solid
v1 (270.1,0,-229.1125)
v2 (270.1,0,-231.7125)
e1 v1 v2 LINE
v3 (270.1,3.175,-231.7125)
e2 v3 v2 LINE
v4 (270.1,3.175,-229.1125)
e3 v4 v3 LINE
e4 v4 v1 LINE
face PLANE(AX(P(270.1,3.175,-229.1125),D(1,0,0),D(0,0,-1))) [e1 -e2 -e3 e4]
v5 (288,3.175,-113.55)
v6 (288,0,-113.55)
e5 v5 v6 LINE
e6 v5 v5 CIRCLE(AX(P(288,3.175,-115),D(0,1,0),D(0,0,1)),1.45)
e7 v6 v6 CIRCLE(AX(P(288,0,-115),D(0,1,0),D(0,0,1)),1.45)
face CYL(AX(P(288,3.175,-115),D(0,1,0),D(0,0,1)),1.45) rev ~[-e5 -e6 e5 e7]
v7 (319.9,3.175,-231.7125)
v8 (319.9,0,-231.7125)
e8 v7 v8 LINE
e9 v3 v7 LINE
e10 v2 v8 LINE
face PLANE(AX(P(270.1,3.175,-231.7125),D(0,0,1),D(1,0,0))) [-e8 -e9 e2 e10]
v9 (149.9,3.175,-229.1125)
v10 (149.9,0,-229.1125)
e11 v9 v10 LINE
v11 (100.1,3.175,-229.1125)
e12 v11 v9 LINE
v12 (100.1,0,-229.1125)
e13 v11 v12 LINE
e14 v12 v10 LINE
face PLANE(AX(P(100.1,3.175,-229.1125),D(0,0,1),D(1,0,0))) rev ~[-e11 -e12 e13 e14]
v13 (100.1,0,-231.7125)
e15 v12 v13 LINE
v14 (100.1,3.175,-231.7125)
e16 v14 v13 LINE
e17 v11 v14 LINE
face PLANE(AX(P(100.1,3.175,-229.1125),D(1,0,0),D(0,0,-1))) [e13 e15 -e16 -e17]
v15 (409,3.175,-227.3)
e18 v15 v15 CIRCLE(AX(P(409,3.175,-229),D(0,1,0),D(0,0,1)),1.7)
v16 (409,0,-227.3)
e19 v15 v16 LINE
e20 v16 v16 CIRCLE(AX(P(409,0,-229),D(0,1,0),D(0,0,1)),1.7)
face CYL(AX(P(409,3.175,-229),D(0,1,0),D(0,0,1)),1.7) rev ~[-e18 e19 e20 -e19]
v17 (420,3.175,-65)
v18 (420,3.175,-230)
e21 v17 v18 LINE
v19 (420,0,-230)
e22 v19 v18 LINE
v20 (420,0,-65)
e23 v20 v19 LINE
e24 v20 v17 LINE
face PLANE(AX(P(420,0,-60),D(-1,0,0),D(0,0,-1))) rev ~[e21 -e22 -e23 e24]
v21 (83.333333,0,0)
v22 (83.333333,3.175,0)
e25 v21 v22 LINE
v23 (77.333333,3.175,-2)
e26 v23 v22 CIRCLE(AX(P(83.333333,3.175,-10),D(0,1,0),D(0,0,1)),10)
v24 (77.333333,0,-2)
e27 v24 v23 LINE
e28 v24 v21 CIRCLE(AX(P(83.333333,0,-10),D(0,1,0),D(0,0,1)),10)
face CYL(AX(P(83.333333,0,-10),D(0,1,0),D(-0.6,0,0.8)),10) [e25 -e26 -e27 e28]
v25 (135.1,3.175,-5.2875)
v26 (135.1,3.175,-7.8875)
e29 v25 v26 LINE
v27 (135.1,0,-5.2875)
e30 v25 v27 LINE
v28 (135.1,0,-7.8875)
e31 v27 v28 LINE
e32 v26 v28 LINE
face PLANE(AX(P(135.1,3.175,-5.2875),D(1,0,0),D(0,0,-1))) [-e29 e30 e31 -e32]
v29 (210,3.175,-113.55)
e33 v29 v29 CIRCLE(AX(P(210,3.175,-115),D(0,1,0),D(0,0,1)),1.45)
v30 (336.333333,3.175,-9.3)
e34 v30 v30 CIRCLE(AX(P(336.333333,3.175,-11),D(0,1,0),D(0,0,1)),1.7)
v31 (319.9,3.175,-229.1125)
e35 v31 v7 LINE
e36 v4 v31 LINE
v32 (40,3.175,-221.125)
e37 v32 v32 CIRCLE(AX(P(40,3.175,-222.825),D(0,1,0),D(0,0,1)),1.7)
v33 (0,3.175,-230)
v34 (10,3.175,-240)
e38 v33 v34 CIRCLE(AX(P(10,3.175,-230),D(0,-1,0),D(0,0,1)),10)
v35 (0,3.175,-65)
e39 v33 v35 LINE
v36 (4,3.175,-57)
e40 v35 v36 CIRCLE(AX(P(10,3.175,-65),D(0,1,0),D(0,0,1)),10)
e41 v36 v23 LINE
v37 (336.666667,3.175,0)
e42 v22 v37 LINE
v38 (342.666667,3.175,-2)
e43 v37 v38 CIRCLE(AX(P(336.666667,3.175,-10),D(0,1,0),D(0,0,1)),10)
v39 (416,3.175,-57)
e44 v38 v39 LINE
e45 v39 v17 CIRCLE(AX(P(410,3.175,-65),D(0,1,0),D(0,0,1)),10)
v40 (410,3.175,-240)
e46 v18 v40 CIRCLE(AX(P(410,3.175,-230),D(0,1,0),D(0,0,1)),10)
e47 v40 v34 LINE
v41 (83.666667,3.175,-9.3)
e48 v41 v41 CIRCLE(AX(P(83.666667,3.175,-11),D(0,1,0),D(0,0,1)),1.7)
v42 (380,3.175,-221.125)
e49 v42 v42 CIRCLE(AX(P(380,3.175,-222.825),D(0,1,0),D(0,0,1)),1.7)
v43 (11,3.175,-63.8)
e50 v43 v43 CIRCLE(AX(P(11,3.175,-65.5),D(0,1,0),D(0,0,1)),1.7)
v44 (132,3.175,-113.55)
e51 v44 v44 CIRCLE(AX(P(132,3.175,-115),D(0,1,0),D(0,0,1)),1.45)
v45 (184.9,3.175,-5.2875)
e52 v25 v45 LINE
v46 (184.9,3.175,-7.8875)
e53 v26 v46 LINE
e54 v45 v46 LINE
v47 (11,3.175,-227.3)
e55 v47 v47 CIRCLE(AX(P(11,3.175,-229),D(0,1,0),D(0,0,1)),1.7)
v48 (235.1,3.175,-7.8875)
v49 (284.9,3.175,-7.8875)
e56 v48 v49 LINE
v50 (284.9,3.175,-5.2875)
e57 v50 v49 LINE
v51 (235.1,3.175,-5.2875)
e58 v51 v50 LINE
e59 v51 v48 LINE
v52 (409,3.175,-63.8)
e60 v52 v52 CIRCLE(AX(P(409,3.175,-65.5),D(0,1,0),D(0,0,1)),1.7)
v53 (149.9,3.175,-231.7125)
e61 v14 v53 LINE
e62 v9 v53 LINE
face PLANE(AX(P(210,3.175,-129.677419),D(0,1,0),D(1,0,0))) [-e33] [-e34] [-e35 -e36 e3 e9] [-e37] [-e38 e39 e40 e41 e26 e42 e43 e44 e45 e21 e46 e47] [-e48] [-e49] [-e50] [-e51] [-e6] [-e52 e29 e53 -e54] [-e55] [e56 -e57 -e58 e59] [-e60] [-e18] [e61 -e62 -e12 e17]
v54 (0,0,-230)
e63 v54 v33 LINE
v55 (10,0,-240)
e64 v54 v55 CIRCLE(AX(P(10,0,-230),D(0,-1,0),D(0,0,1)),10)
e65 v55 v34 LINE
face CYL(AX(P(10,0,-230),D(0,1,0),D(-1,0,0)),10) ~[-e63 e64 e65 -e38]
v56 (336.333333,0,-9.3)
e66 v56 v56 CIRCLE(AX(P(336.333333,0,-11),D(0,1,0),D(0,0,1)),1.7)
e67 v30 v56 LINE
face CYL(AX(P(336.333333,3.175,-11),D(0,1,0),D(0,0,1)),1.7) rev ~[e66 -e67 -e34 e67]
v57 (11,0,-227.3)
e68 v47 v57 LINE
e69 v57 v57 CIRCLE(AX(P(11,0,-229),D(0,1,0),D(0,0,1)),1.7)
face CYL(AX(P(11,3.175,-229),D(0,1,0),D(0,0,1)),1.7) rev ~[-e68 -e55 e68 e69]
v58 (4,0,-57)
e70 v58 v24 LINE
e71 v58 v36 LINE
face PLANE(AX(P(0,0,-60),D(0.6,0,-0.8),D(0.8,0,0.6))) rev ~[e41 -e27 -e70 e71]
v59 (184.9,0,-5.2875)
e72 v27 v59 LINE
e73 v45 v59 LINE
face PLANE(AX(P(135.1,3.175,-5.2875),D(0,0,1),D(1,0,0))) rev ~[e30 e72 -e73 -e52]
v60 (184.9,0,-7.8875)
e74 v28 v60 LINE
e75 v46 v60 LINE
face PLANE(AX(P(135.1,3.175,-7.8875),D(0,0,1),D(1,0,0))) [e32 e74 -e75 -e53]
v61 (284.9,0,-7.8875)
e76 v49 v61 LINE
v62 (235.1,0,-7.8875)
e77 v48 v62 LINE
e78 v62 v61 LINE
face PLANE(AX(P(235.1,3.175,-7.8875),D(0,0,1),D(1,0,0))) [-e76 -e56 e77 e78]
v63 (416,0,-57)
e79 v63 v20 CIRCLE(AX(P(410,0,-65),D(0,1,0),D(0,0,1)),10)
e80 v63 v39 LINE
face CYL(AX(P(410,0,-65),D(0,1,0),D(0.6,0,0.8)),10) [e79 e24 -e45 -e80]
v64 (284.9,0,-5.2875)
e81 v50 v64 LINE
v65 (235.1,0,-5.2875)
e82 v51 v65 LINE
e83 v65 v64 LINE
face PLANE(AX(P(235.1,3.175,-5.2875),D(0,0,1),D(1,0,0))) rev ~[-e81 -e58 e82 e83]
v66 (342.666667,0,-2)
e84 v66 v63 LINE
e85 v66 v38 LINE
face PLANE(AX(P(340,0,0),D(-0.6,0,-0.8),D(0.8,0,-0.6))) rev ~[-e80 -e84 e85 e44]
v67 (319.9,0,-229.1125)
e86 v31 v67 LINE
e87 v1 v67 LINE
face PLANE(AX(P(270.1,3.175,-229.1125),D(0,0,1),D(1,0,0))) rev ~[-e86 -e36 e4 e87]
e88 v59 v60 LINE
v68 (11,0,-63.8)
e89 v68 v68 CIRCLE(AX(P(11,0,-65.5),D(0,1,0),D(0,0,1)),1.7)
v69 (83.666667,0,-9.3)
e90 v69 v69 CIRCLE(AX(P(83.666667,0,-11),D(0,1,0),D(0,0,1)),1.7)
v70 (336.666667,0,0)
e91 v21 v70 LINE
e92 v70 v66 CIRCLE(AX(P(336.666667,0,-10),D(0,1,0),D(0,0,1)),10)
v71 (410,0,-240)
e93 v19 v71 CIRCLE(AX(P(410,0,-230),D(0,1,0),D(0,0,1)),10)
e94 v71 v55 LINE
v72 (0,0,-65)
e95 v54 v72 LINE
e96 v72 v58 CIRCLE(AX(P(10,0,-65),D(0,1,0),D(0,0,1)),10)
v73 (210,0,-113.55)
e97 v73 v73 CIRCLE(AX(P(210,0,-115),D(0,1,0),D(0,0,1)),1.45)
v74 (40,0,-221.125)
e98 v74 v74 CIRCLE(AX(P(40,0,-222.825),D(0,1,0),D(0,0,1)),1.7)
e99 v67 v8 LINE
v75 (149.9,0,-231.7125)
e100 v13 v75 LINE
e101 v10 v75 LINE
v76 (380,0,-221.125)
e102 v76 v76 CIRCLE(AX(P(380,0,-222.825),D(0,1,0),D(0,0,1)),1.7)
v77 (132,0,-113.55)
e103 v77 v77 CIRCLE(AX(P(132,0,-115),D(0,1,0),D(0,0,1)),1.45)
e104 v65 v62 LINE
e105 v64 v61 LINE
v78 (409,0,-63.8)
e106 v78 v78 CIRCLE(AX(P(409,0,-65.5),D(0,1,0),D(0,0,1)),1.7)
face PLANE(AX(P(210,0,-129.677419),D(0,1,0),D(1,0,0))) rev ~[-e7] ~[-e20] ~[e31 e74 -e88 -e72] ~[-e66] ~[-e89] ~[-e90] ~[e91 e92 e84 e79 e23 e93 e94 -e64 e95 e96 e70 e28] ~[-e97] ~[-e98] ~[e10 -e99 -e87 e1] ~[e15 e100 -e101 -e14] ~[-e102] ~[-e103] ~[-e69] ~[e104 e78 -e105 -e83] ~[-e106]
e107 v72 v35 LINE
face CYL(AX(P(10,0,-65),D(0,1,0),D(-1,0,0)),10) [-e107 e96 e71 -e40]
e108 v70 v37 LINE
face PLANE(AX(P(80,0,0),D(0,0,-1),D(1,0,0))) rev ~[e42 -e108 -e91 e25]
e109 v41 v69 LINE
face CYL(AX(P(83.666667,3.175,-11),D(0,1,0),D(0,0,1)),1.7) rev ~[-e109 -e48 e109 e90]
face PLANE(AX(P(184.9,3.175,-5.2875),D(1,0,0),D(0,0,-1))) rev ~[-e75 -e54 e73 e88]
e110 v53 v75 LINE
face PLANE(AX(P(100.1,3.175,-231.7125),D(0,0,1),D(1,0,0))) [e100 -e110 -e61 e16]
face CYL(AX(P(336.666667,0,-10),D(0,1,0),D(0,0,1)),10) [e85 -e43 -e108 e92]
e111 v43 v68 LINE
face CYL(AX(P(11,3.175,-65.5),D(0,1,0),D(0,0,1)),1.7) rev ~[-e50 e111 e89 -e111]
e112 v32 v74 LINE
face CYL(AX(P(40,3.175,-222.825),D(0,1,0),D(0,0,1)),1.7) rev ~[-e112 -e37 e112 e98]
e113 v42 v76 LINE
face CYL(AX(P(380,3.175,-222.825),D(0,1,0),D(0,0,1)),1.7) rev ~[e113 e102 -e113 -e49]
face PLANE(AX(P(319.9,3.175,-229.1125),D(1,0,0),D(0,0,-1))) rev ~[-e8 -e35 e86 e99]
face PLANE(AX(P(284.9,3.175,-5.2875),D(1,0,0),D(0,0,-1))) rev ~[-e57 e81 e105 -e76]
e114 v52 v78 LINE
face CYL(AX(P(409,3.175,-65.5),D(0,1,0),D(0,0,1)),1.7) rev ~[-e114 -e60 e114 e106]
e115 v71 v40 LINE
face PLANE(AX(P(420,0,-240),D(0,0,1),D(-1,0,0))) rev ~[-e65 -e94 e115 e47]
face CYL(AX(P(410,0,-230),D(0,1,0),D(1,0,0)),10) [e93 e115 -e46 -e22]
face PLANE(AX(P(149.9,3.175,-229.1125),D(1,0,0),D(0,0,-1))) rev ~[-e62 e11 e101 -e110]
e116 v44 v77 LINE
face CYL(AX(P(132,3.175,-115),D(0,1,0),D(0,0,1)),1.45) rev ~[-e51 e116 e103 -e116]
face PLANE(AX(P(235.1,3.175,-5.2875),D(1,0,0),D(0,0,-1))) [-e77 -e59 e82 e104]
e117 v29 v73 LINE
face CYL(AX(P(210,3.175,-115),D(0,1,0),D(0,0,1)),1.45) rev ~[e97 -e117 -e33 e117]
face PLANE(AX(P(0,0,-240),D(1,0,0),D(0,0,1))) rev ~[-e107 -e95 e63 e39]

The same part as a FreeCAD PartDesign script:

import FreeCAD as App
import Part
import Sketcher
Q = App.Units.Quantity


def edges_at(feature, points):
    """Names of the edges that pass closest to the given points."""
    edges = feature.Shape.Edges
    near = lambda p: min(range(len(edges)), key=lambda i: edges[i].distToShape(Part.Vertex(*p))[0])
    return sorted({f"Edge{near(p) + 1}" for p in points})


def add_polygon(sketch, points):
    """Adds a closed chain of lines whose ends are joined by coincident constraints."""
    first, n = sketch.GeometryCount, len(points)
    for a, b in zip(points, points[1:] + points[:1]):
        sketch.addGeometry(Part.LineSegment(App.Vector(*a, 0), App.Vector(*b, 0)), False)
    for i in range(n):
        sketch.addConstraint(Sketcher.Constraint("Coincident", first + i, 2, first + (i + 1) % n, 1))

doc = App.newDocument("Part")
params = doc.addObject("Spreadsheet::Sheet", "Params")
for row, (alias, value) in enumerate([
    ("sketch1_width", "260 mm"),
    ("sketch1_width2", "420 mm"),
    ("sketch1_height", "180 mm"),
    ("sketch1_length", "100 mm"),
    ("pad1_length", "3.175 mm"),
    ("fillet_radius", "10 mm"),
    ("sketch2_diameter", "3.4 mm"),
    ("sketch2_diameter2", "2.9 mm"),
    ("pocket1_length", "3.175 mm"),
    ("sketch3_width", "49.8 mm"),
    ("sketch3_height", "2.6 mm"),
    ("pocket2_length", "3.175 mm"),
], start=1):
    params.set(f"A{row}", alias)
    params.set(f"B{row}", "=" + value)
    params.setAlias(f"B{row}", alias)

body = doc.addObject("PartDesign::Body", "Body")

# Sketch on XZ plane
sketch1 = doc.addObject("Sketcher::SketchObject", "Sketch")
body.addObject(sketch1)
sketch1.AttachmentSupport = (doc.XZ_Plane, [""])
sketch1.MapMode = "FlatFace"
add_polygon(sketch1, [(0, -240), (0, -60), (80, 0), (340, 0), (420, -60), (420, -240)])  # lines 0-5
sketch1.addConstraint([
    Sketcher.Constraint("Vertical", 0),
    Sketcher.Constraint("Horizontal", 2),
    Sketcher.Constraint("Vertical", 4),
    Sketcher.Constraint("Horizontal", 5),
    Sketcher.Constraint("PointOnObject", 0, 2, -2),
    Sketcher.Constraint("PointOnObject", 1, 2, -1),
    Sketcher.Constraint("Horizontal", 0, 2, 3, 2),
    Sketcher.Constraint("Equal", 1, 3),
    Sketcher.Constraint("DistanceX", 2, 1, 2, 2, Q("260 mm")),
    Sketcher.Constraint("DistanceX", 5, 2, 5, 1, Q("420 mm")),
    Sketcher.Constraint("DistanceY", 0, 1, 0, 2, Q("180 mm")),
    Sketcher.Constraint("Distance", 1, Q("100 mm")),
])
sketch1.setExpression("Constraints[14]", "Params.sketch1_width")
sketch1.setExpression("Constraints[15]", "Params.sketch1_width2")
sketch1.setExpression("Constraints[16]", "Params.sketch1_height")
sketch1.setExpression("Constraints[17]", "Params.sketch1_length")
pad1 = doc.addObject("PartDesign::Pad", "Pad")
body.addObject(pad1)
pad1.Profile = sketch1
pad1.setExpression("Length", "Params.pad1_length")
pad1.Reversed = True
doc.recompute()

fillet = doc.addObject("PartDesign::Fillet", "Fillet")
body.addObject(fillet)
fillet.Base = (pad1, edges_at(pad1, [
    (420, 1.587, -240),
    (420, 1.587, -60),
    (340, 1.587, 0),
    (80, 1.587, 0),
    (0, 1.587, -60),
    (0, 1.587, -240),
]))
fillet.setExpression("Radius", "Params.fillet_radius")

# Sketch on XZ plane
sketch2 = doc.addObject("Sketcher::SketchObject", "Sketch001")
body.addObject(sketch2)
sketch2.AttachmentSupport = (doc.XZ_Plane, [""])
sketch2.MapMode = "FlatFace"
sketch2.AttachmentOffset = App.Placement(App.Vector(0, 0, -3.175), App.Rotation())
sketch2.addGeometry([
    Part.Circle(App.Vector(11, -229, 0), App.Vector(0, 0, 1), 1.7),  # 0
    Part.Circle(App.Vector(11, -65.5, 0), App.Vector(0, 0, 1), 1.7),  # 1
    Part.Circle(App.Vector(83.7, -11, 0), App.Vector(0, 0, 1), 1.7),  # 2
    Part.Circle(App.Vector(409, -65.5, 0), App.Vector(0, 0, 1), 1.7),  # 3
    Part.Circle(App.Vector(336.3, -11, 0), App.Vector(0, 0, 1), 1.7),  # 4
    Part.Circle(App.Vector(210, -115, 0), App.Vector(0, 0, 1), 1.4),  # 5
    Part.Circle(App.Vector(132, -115, 0), App.Vector(0, 0, 1), 1.4),  # 6
    Part.Circle(App.Vector(288, -115, 0), App.Vector(0, 0, 1), 1.4),  # 7
    Part.Circle(App.Vector(40, -222.8, 0), App.Vector(0, 0, 1), 1.7),  # 8
    Part.Circle(App.Vector(380, -222.8, 0), App.Vector(0, 0, 1), 1.7),  # 9
    Part.Circle(App.Vector(409, -229, 0), App.Vector(0, 0, 1), 1.7),  # 10
], False)
sketch2.addConstraint([
    Sketcher.Constraint("Equal", 0, 1),
    Sketcher.Constraint("Equal", 1, 2),
    Sketcher.Constraint("Equal", 2, 3),
    Sketcher.Constraint("Equal", 3, 4),
    Sketcher.Constraint("Equal", 5, 6),
    Sketcher.Constraint("Equal", 6, 7),
    Sketcher.Constraint("Equal", 4, 8),
    Sketcher.Constraint("Equal", 8, 9),
    Sketcher.Constraint("Equal", 9, 10),
    Sketcher.Constraint("Horizontal", 1, 3, 3, 3),
    Sketcher.Constraint("Horizontal", 2, 3, 4, 3),
    Sketcher.Constraint("Horizontal", 5, 3, 6, 3),
    Sketcher.Constraint("Horizontal", 6, 3, 7, 3),
    Sketcher.Constraint("Horizontal", 8, 3, 9, 3),
    Sketcher.Constraint("Horizontal", 0, 3, 10, 3),
    Sketcher.Constraint("Vertical", 0, 3, 1, 3),
    Sketcher.Constraint("Vertical", 3, 3, 10, 3),
    Sketcher.Constraint("Diameter", 0, Q("3.4 mm")),
    Sketcher.Constraint("Diameter", 5, Q("2.9 mm")),
    Sketcher.Constraint("DistanceX", -1, 1, 0, 3, Q("11 mm")),
    Sketcher.Constraint("DistanceY", 0, 3, -1, 1, Q("229 mm")),
    Sketcher.Constraint("DistanceY", 2, 3, -1, 1, Q("11 mm")),
    Sketcher.Constraint("DistanceX", -1, 1, 3, 3, Q("409 mm")),
    Sketcher.Constraint("DistanceX", -1, 1, 5, 3, Q("210 mm")),
    Sketcher.Constraint("DistanceY", 5, 3, -1, 1, Q("115 mm")),
    Sketcher.Constraint("DistanceX", -1, 1, 6, 3, Q("132 mm")),
    Sketcher.Constraint("DistanceX", -1, 1, 7, 3, Q("288 mm")),
    Sketcher.Constraint("DistanceX", -1, 1, 8, 3, Q("40 mm")),
    Sketcher.Constraint("DistanceX", -1, 1, 9, 3, Q("380 mm")),
    Sketcher.Constraint("DistanceY", 1, 3, -1, 1, Q("65.5 mm")),
    Sketcher.Constraint("DistanceY", 8, 3, -1, 1, Q("222.825 mm")),
    Sketcher.Constraint("DistanceX", -1, 1, 2, 3, Q("83.666667 mm")),
    Sketcher.Constraint("DistanceX", -1, 1, 4, 3, Q("336.333333 mm")),
])
sketch2.setExpression("Constraints[17]", "Params.sketch2_diameter")
sketch2.setExpression("Constraints[18]", "Params.sketch2_diameter2")
pocket1 = doc.addObject("PartDesign::Pocket", "Pocket")
body.addObject(pocket1)
pocket1.Profile = sketch2
pocket1.setExpression("Length", "Params.pocket1_length")
pocket1.Reversed = True

# Sketch on XZ plane
sketch3 = doc.addObject("Sketcher::SketchObject", "Sketch002")
body.addObject(sketch3)
sketch3.AttachmentSupport = (doc.XZ_Plane, [""])
sketch3.MapMode = "FlatFace"
sketch3.AttachmentOffset = App.Placement(App.Vector(0, 0, -3.175), App.Rotation())
add_polygon(sketch3, [(135.1, -7.9), (135.1, -5.3), (184.9, -5.3), (184.9, -7.9)])  # lines 0-3
add_polygon(sketch3, [(100.1, -231.7), (100.1, -229.1), (149.9, -229.1), (149.9, -231.7)])  # lines 4-7
add_polygon(sketch3, [(270.1, -231.7), (270.1, -229.1), (319.9, -229.1), (319.9, -231.7)])  # lines 8-11
add_polygon(sketch3, [(235.1, -7.9), (235.1, -5.3), (284.9, -5.3), (284.9, -7.9)])  # lines 12-15
sketch3.addConstraint([
    Sketcher.Constraint("Vertical", 0),
    Sketcher.Constraint("Horizontal", 1),
    Sketcher.Constraint("Vertical", 2),
    Sketcher.Constraint("Horizontal", 3),
    Sketcher.Constraint("Vertical", 4),
    Sketcher.Constraint("Horizontal", 5),
    Sketcher.Constraint("Vertical", 6),
    Sketcher.Constraint("Horizontal", 7),
    Sketcher.Constraint("Vertical", 8),
    Sketcher.Constraint("Horizontal", 9),
    Sketcher.Constraint("Vertical", 10),
    Sketcher.Constraint("Horizontal", 11),
    Sketcher.Constraint("Vertical", 12),
    Sketcher.Constraint("Horizontal", 13),
    Sketcher.Constraint("Vertical", 14),
    Sketcher.Constraint("Horizontal", 15),
    Sketcher.Constraint("Horizontal", 5, 2, 8, 2),
    Sketcher.Constraint("Horizontal", 7, 2, 10, 2),
    Sketcher.Constraint("Horizontal", 1, 2, 12, 2),
    Sketcher.Constraint("Horizontal", 3, 2, 14, 2),
    Sketcher.Constraint("Equal", 3, 5),
    Sketcher.Constraint("Equal", 7, 9),
    Sketcher.Constraint("Equal", 11, 13),
    Sketcher.Constraint("Equal", 2, 4),
    Sketcher.Constraint("DistanceX", 1, 1, 1, 2, Q("49.8 mm")),
    Sketcher.Constraint("DistanceY", 0, 1, 0, 2, Q("2.6 mm")),
    Sketcher.Constraint("DistanceX", 4, 2, 3, 2, Q("35 mm")),
    Sketcher.Constraint("DistanceX", 4, 2, 8, 2, Q("170 mm")),
    Sketcher.Constraint("DistanceX", 0, 2, 12, 2, Q("100 mm")),
    Sketcher.Constraint("DistanceX", -1, 1, 0, 2, Q("135.1 mm")),
    Sketcher.Constraint("DistanceY", 4, 2, 3, 2, Q("221.225 mm")),
    Sketcher.Constraint("DistanceY", 0, 2, -1, 1, Q("5.2875 mm")),
])
sketch3.setExpression("Constraints[40]", "Params.sketch3_width")
sketch3.setExpression("Constraints[41]", "Params.sketch3_height")
pocket2 = doc.addObject("PartDesign::Pocket", "Pocket001")
body.addObject(pocket2)
pocket2.Profile = sketch3
pocket2.setExpression("Length", "Params.pocket2_length")
pocket2.Reversed = True

doc.recompute()
